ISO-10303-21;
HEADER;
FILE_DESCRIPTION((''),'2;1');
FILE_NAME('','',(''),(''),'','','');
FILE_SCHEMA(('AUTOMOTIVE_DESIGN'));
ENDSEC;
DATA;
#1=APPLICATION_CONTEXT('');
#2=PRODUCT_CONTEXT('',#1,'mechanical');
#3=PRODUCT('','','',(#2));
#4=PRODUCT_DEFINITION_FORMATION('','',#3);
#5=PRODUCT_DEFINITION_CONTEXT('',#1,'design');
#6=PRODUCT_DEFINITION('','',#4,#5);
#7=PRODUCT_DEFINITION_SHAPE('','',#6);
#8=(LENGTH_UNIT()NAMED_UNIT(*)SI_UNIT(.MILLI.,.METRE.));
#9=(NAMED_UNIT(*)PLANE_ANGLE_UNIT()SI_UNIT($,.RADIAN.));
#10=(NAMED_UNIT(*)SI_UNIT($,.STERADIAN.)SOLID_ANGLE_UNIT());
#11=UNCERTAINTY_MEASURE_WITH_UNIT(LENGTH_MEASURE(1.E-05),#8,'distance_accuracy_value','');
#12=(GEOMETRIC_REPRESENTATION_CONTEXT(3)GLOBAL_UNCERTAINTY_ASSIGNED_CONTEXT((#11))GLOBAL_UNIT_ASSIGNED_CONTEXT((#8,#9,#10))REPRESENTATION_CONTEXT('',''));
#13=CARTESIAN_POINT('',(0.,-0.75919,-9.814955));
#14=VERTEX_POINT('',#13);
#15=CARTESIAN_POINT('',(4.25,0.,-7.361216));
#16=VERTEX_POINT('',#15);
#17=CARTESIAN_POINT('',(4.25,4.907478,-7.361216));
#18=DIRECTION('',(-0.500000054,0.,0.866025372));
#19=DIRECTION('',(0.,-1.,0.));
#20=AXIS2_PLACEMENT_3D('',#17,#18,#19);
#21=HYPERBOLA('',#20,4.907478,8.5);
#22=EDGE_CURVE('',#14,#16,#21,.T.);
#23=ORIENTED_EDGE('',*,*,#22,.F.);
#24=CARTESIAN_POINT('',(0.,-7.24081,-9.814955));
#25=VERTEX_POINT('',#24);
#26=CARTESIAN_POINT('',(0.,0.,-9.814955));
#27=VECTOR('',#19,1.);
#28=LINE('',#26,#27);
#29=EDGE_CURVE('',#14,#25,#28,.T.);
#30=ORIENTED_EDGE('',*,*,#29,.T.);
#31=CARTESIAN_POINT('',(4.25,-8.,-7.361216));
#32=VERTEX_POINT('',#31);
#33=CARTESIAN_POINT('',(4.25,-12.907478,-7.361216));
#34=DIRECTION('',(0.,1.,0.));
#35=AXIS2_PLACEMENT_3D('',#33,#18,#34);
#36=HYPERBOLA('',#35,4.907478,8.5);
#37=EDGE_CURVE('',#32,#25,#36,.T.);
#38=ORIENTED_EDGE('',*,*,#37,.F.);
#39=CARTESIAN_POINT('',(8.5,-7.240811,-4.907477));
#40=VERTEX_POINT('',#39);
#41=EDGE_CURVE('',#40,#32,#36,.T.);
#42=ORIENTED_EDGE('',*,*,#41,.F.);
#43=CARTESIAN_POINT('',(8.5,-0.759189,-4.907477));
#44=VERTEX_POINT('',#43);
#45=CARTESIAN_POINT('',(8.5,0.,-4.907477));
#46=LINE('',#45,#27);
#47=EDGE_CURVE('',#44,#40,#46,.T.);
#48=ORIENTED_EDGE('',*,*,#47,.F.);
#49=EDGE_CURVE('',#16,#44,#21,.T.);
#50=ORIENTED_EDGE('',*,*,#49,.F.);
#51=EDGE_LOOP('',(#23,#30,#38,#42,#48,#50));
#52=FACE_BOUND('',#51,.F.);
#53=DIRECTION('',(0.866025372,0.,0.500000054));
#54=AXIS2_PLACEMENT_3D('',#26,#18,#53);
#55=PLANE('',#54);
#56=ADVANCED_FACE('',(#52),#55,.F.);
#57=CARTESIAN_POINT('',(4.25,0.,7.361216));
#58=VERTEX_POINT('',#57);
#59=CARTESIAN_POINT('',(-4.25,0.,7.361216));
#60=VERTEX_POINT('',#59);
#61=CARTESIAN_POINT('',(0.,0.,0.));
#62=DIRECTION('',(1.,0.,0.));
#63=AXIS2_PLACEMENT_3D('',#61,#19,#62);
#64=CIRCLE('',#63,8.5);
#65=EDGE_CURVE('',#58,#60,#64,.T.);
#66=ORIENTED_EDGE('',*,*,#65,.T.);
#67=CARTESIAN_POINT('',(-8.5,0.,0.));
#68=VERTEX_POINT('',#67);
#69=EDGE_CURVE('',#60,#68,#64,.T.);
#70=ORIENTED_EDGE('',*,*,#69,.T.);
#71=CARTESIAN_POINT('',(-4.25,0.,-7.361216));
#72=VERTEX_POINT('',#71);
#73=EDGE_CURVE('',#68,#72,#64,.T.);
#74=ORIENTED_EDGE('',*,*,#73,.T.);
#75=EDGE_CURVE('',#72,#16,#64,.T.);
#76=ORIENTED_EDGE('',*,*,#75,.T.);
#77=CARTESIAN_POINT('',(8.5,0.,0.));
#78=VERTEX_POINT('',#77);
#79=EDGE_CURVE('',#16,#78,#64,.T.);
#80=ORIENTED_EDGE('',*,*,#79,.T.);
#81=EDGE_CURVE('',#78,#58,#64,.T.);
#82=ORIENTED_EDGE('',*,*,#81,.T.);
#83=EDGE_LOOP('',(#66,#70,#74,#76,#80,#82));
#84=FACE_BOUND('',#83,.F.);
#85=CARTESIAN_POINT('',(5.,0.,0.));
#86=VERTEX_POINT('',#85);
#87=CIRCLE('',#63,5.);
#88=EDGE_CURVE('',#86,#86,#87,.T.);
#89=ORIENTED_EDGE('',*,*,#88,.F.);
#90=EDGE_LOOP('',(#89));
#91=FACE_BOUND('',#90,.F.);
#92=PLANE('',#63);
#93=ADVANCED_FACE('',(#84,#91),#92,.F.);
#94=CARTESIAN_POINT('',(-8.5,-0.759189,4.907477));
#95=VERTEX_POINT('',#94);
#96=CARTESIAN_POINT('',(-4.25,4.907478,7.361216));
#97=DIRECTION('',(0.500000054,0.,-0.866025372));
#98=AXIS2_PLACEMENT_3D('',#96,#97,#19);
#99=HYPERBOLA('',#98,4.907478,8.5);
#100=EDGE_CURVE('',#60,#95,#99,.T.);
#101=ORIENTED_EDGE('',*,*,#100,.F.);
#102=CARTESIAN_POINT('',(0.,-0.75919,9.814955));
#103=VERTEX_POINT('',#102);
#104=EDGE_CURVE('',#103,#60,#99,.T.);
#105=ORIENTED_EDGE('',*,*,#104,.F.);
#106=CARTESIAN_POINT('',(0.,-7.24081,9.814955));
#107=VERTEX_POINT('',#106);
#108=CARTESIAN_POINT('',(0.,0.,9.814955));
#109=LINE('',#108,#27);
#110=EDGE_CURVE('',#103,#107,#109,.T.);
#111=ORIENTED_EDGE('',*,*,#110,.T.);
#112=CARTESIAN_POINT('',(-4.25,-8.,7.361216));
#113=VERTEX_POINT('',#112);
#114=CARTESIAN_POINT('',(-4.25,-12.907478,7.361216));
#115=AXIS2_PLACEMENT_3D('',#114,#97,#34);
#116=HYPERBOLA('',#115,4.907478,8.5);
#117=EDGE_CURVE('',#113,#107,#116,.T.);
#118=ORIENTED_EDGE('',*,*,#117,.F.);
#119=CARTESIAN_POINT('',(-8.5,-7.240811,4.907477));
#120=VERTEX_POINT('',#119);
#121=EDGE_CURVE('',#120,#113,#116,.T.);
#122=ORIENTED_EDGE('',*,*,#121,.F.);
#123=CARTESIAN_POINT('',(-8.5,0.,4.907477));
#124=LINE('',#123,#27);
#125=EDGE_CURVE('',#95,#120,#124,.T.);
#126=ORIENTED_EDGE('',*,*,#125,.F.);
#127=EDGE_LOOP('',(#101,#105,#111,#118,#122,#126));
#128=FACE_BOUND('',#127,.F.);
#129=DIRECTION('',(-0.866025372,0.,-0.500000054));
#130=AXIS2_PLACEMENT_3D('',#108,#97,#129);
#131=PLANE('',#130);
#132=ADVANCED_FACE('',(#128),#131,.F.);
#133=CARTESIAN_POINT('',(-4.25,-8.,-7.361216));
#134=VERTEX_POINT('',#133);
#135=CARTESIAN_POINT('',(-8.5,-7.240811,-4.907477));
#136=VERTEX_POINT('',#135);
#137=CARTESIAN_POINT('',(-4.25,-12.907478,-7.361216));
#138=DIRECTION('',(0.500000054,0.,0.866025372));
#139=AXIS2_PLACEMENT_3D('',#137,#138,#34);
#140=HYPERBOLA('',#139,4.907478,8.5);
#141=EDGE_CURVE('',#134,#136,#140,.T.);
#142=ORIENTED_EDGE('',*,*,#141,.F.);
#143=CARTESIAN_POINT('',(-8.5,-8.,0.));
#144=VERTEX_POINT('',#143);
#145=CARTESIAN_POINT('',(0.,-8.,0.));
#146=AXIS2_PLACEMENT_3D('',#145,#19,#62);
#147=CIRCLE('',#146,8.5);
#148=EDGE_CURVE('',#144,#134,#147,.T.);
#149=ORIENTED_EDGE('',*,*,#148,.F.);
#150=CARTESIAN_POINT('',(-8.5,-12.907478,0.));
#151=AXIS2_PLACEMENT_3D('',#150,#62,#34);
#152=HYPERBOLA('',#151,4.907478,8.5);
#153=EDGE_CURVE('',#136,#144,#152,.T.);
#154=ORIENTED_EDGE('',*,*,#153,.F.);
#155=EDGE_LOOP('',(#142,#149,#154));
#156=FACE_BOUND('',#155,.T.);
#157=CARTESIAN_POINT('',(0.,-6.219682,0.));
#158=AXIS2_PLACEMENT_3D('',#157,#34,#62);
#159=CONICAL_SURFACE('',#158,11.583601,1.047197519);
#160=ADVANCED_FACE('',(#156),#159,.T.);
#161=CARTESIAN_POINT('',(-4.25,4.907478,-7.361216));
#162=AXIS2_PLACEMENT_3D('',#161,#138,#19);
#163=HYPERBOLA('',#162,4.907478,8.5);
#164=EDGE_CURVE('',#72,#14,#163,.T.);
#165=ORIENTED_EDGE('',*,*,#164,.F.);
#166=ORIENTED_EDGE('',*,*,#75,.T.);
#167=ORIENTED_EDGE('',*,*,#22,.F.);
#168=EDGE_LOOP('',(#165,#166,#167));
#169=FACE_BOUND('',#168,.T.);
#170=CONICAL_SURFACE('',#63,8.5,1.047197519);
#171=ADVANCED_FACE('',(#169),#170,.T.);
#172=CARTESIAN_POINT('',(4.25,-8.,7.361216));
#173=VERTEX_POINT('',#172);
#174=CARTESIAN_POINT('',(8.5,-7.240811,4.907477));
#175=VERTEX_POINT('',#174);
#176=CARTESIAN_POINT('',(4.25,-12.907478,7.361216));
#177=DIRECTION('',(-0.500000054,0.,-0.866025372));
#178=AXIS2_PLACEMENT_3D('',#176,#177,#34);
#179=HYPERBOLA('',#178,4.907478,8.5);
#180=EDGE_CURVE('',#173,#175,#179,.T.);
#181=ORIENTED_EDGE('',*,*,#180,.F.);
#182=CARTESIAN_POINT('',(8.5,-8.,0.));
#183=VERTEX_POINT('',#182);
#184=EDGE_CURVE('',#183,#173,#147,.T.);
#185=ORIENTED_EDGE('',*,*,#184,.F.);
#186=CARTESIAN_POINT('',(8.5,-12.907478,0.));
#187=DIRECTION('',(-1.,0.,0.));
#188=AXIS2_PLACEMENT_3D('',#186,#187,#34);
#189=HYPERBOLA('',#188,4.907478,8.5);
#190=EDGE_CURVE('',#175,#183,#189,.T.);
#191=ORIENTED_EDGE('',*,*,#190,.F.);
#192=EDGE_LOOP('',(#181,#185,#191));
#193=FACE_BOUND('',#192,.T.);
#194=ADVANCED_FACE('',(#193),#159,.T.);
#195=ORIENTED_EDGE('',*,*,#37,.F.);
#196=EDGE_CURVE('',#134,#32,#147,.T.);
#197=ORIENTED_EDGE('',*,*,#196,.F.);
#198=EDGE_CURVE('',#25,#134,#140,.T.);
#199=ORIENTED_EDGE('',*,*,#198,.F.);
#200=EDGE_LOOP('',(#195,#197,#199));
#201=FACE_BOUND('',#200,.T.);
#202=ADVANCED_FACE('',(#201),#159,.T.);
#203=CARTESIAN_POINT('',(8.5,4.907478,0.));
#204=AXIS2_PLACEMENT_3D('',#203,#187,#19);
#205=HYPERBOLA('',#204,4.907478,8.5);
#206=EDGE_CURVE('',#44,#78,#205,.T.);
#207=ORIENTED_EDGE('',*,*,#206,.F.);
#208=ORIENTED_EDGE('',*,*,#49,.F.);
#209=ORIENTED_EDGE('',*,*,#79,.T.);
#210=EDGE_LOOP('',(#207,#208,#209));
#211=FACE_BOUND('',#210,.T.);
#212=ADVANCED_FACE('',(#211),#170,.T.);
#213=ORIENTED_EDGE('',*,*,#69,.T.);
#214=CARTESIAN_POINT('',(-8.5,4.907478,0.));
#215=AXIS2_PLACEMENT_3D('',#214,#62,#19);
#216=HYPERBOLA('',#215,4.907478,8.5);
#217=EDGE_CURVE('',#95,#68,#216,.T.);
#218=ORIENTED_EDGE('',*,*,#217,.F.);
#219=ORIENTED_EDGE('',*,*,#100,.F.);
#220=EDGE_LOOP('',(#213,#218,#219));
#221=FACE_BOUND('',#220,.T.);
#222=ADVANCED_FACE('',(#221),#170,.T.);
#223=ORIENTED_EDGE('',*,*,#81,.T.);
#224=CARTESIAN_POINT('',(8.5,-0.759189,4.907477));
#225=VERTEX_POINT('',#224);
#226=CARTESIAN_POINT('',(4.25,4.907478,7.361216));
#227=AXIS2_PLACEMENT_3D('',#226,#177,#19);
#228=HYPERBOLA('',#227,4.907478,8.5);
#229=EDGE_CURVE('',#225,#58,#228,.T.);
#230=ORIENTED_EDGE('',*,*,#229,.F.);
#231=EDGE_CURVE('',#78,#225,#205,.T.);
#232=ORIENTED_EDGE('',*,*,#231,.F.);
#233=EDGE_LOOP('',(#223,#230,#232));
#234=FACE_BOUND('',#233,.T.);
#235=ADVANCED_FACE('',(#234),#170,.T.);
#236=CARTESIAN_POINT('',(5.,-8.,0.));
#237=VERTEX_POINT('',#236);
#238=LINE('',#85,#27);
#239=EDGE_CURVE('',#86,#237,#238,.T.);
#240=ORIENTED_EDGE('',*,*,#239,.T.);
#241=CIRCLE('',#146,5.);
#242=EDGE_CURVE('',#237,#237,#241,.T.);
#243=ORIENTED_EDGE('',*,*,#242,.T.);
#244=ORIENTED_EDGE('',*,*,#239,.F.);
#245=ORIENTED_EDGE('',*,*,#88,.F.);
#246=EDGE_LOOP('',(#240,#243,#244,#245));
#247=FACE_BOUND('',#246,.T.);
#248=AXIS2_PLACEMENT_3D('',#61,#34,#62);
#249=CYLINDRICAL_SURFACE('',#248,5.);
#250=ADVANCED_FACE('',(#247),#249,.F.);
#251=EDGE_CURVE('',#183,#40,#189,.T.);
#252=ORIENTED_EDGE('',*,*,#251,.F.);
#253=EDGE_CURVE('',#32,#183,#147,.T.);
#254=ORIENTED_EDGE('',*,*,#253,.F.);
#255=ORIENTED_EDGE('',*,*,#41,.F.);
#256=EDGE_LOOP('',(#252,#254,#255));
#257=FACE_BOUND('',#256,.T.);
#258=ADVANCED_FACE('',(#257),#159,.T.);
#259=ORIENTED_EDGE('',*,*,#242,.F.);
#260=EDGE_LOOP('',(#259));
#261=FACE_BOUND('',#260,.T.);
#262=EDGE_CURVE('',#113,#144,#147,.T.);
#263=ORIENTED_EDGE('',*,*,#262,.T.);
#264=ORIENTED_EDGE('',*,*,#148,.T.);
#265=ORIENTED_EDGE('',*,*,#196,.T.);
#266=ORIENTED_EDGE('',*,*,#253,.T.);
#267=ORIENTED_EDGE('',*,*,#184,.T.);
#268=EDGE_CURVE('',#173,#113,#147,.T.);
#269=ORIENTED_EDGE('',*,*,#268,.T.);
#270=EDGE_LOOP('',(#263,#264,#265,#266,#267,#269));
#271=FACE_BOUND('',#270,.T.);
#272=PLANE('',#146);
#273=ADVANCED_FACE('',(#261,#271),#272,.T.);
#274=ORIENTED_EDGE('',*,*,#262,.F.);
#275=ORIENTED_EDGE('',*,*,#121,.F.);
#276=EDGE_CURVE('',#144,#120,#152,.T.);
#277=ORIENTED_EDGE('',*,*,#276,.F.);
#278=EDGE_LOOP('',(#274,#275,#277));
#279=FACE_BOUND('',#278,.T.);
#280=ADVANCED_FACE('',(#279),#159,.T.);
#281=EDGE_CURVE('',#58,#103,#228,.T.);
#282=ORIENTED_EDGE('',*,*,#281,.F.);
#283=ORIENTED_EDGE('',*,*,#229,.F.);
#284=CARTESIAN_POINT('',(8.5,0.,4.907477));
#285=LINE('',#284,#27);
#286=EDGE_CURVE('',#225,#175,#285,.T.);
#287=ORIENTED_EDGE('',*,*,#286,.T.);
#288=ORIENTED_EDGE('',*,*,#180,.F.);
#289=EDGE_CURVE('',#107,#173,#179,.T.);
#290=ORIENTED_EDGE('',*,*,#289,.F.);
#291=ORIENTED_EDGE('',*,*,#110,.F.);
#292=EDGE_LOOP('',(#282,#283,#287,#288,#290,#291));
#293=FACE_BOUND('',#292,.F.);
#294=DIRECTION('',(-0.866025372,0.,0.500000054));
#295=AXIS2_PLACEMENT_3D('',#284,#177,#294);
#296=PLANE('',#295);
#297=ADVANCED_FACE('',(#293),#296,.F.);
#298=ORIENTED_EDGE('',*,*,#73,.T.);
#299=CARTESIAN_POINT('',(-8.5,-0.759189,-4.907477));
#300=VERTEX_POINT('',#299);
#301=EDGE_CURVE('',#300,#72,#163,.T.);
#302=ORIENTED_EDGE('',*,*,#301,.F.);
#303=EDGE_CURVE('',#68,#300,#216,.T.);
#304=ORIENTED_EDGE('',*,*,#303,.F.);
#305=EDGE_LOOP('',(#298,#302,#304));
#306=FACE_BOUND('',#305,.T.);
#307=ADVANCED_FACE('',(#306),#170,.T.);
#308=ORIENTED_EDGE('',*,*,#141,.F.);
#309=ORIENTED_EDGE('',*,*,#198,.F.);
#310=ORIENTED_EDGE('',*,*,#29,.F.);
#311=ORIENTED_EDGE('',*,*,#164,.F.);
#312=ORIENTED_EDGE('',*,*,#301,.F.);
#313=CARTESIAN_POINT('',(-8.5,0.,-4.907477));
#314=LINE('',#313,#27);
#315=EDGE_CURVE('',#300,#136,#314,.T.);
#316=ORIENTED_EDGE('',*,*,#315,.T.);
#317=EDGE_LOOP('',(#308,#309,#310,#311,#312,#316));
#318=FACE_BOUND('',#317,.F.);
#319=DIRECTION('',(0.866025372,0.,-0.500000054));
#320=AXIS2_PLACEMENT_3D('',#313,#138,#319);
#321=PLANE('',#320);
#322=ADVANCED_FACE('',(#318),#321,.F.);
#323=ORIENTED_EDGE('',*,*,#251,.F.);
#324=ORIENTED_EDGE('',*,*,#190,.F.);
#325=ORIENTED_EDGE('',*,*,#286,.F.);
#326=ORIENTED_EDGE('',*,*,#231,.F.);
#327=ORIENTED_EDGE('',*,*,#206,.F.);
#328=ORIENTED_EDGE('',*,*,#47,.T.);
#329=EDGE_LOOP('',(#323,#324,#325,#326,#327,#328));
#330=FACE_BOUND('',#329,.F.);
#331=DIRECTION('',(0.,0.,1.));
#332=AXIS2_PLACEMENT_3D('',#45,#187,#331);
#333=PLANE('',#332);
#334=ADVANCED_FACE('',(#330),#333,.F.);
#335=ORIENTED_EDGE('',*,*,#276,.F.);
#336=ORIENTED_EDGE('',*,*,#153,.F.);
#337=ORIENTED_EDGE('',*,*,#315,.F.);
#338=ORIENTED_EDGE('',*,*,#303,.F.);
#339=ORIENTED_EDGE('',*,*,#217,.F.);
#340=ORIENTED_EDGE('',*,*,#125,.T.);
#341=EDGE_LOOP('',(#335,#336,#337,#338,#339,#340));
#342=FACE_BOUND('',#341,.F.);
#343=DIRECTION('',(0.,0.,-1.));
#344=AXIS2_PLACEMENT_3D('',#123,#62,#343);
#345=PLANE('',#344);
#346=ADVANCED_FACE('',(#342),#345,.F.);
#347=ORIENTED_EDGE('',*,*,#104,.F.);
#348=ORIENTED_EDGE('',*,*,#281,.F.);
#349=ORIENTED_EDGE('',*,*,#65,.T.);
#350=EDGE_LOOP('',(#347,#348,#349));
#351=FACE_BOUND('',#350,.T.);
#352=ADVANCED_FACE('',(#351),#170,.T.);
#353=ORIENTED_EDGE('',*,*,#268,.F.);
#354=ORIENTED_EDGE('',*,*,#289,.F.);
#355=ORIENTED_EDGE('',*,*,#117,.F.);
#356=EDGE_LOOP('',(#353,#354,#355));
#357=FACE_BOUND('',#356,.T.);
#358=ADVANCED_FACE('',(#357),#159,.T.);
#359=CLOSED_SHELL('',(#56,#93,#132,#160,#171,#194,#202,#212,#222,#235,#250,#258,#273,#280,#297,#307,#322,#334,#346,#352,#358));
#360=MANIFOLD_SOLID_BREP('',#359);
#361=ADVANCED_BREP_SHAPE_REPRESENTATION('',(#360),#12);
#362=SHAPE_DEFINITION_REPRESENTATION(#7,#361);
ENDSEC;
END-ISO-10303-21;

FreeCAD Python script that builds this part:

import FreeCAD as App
import Part
import Sketcher
from FreeCAD import Vector
Q = App.Units.Quantity


def add_polygon(sketch, points):
    """Adds a closed chain of lines whose ends are joined by coincident constraints."""
    first, n = sketch.GeometryCount, len(points)
    for a, b in zip(points, points[1:] + points[:1]):
        sketch.addGeometry(Part.LineSegment(App.Vector(*a, 0), App.Vector(*b, 0)), False)
    for i in range(n):
        sketch.addConstraint(Sketcher.Constraint("Coincident", first + i, 2, first + (i + 1) % n, 1))

doc = App.newDocument("Part")
params = doc.addObject("Spreadsheet::Sheet", "Params")
for row, (alias, value) in enumerate([
    ("sketch1_diameter", "10 mm"),
    ("pad1_length", "8 mm"),
    ("groove_angle", "360 deg"),
], start=1):
    params.set(f"A{row}", alias)
    params.set(f"B{row}", "=" + value)
    params.setAlias(f"B{row}", alias)

body = doc.addObject("PartDesign::Body", "Body")

# Sketch on XZ plane
sketch1 = body.newObject("Sketcher::SketchObject", "Sketch")
sketch1.AttachmentSupport = (doc.getObject("XZ_Plane"), [""])
sketch1.MapMode = "FlatFace"
add_polygon(sketch1, [(8, -5), (8, 5), (0, 10), (-8, 5), (-8, -5), (0, -10)])  # lines 0-5
sketch1.addGeometry(Part.Circle(Vector(0, 0, 0), Vector(0, 0, 1), 5), False)  # 6
sketch1.addConstraint(Sketcher.Constraint("Vertical", 0))
sketch1.addConstraint(Sketcher.Constraint("Vertical", 3))
sketch1.addConstraint(Sketcher.Constraint("Coincident", 6, 3, -1, 1))
sketch1.addConstraint(Sketcher.Constraint("Symmetric", 0, 2, 3, 2, -1, 1))
sketch1.addConstraint(Sketcher.Constraint("Symmetric", 1, 2, 4, 2, -1, 1))
sketch1.addConstraint(Sketcher.Constraint("PointOnObject", 1, 2, -2))
sketch1.addConstraint(Sketcher.Constraint("Parallel", 2, 5))
sketch1.addConstraint(Sketcher.Constraint("Horizontal", 0, 2, 2, 2))
sketch1.addConstraint(Sketcher.Constraint("Diameter", 6, 10.0))
sketch1.addConstraint(Sketcher.Constraint("Angle", 1, Q("149.999996 deg")))
sketch1.addConstraint(Sketcher.Constraint("DistanceX", 2, 2, 0, 2, 17.0))
sketch1.addConstraint(Sketcher.Constraint("DistanceY", 0, 1, 0, 2, 9.814954))
sketch1.setExpression("Constraints[14]", "Params.sketch1_diameter")
pad1 = body.newObject("PartDesign::Pad", "Pad")
pad1.Profile = sketch1
pad1.setExpression("Length", "Params.pad1_length")

# Sketch on XY plane
sketch2 = body.newObject("Sketcher::SketchObject", "Sketch001")
sketch2.AttachmentSupport = (doc.getObject("XY_Plane"), [""])
sketch2.MapMode = "FlatFace"
add_polygon(sketch2, [(11.6, -1.8), (11.6, 0), (8.5, 0)])  # lines 0-2
add_polygon(sketch2, [(11.6, -6.2), (8.5, -8), (11.6, -8)])  # lines 3-5
sketch2.addConstraint(Sketcher.Constraint("Vertical", 0))
sketch2.addConstraint(Sketcher.Constraint("Horizontal", 1))
sketch2.addConstraint(Sketcher.Constraint("Horizontal", 4))
sketch2.addConstraint(Sketcher.Constraint("Vertical", 5))
sketch2.addConstraint(Sketcher.Constraint("PointOnObject", 0, 2, -1))
sketch2.addConstraint(Sketcher.Constraint("Vertical", 1, 2, 3, 2))
sketch2.addConstraint(Sketcher.Constraint("Vertical", 2, 2, 4, 2))
sketch2.addConstraint(Sketcher.Constraint("Equal", 0, 5))
sketch2.addConstraint(Sketcher.Constraint("Angle", 2, Q("-30.000002 deg")))
sketch2.addConstraint(Sketcher.Constraint("DistanceY", 3, 2, -1, 1, 8.0))
sketch2.addConstraint(Sketcher.Constraint("DistanceX", -1, 1, 1, 2, 8.5))
sketch2.addConstraint(Sketcher.Constraint("DistanceX", 1, 2, 1, 1, 3.083601))
groove = body.newObject("PartDesign::Groove", "Groove")
groove.Profile = sketch2
groove.ReferenceAxis = (sketch2, ["V_Axis"])
groove.setExpression("Angle", "Params.groove_angle")

doc.recompute()
